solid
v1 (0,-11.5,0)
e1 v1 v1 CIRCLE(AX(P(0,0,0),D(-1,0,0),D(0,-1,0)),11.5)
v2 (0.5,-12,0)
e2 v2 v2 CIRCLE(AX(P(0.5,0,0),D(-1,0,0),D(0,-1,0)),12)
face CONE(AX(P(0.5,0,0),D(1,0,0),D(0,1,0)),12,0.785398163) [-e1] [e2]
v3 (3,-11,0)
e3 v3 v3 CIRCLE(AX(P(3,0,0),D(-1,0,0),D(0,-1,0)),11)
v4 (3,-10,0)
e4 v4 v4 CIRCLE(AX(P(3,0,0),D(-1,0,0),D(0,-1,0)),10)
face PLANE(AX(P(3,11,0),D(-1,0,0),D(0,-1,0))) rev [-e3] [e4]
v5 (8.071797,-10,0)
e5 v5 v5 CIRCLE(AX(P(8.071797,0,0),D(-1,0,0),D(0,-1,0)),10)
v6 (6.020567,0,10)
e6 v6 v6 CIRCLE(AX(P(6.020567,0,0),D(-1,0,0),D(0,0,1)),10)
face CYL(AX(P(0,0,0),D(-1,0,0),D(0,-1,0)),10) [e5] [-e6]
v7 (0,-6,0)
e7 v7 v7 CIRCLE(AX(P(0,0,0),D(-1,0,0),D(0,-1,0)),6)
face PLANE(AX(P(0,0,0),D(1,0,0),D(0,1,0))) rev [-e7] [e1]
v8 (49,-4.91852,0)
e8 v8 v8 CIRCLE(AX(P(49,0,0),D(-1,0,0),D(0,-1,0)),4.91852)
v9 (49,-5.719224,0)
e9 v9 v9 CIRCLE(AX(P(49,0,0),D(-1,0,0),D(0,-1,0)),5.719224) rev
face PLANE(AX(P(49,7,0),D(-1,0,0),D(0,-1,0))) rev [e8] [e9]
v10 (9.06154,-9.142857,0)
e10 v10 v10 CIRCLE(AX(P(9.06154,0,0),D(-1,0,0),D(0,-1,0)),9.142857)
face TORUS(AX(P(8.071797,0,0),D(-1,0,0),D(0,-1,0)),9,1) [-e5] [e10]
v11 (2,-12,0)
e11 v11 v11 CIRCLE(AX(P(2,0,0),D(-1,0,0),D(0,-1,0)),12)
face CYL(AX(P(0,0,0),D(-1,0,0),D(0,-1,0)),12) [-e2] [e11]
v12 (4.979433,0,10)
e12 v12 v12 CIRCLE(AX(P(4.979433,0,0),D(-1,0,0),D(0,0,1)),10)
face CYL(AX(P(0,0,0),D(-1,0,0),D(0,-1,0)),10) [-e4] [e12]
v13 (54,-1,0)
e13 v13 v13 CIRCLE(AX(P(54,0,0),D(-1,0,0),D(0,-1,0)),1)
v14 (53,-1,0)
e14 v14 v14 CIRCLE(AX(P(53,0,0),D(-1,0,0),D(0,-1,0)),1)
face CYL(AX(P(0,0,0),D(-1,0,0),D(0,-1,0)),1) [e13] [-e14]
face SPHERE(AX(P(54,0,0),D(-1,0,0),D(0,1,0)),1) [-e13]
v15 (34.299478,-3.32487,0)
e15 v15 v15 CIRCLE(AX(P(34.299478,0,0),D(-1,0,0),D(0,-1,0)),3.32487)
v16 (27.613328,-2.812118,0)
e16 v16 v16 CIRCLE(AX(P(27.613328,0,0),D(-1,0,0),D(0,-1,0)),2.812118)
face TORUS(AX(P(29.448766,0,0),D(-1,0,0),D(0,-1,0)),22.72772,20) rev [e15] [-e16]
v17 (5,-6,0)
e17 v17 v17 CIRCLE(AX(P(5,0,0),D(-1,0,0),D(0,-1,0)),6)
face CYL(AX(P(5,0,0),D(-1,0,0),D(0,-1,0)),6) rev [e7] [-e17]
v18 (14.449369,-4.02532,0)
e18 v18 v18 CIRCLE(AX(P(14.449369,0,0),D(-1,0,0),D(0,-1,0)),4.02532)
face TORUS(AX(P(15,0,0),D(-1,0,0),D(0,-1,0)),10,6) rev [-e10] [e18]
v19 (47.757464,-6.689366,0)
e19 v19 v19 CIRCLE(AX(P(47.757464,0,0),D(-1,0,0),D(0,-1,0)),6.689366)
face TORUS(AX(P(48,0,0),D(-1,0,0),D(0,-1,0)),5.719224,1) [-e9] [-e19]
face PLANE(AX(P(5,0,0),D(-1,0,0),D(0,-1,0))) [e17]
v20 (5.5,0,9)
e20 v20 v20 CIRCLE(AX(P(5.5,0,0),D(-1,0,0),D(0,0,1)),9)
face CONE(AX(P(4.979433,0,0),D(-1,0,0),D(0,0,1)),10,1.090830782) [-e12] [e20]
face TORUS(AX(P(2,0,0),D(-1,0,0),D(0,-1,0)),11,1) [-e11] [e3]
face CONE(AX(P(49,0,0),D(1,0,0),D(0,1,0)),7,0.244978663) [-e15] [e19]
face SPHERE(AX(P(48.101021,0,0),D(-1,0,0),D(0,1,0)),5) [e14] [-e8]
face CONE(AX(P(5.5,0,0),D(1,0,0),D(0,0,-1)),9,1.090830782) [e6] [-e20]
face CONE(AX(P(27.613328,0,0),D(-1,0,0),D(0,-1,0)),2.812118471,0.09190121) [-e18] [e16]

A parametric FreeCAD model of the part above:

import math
import FreeCAD as App
import Part
import Sketcher
from FreeCAD import Vector
Q = App.Units.Quantity


def edges_at(feature, points):
    """Names of the edges that pass closest to the given points."""
    edges = feature.Shape.Edges
    near = lambda p: min(range(len(edges)), key=lambda i: edges[i].distToShape(Part.Vertex(*p))[0])
    return sorted({f"Edge{near(p) + 1}" for p in points})

doc = App.newDocument("Part")
body = doc.addObject("PartDesign::Body", "Body")

# Sketch on XY plane
sketch1 = body.newObject("Sketcher::SketchObject", "Sketch")
sketch1.AttachmentSupport = (doc.getObject("XY_Plane"), [""])
sketch1.MapMode = "FlatFace"
sketch1.addGeometry([
    Part.LineSegment(Vector(0, 11.5, 0), Vector(0, 0, 0)),  # 0
    Part.LineSegment(Vector(0, 0, 0), Vector(55, 0, 0)),  # 1
    Part.ArcOfCircle(Part.Circle(Vector(54, 0, 0), Vector(0, 0, 1), 1), math.radians(0), math.radians(90)),  # 2
    Part.LineSegment(Vector(54, 1, 0), Vector(53, 1, 0)),  # 3
    Part.ArcOfCircle(Part.Circle(Vector(48.101021, 0, 0), Vector(0, 0, 1), 5), math.radians(11.536959), math.radians(79.642128)),  # 4
    Part.LineSegment(Vector(49, 4.91852, 0), Vector(49, 7, 0)),  # 5
    Part.LineSegment(Vector(49, 7, 0), Vector(34.299478, 3.32487, 0)),  # 6
    Part.ArcOfCircle(Part.Circle(Vector(29.448766, 22.72772, 0), Vector(0, 0, 1), 20), math.radians(-95.265551), math.radians(-75.963757)),  # 7
    Part.LineSegment(Vector(27.613328, 2.812118, 0), Vector(14.449369, 4.02532, 0)),  # 8
    Part.ArcOfCircle(Part.Circle(Vector(15, 10, 0), Vector(0, 0, 1), 6), math.radians(-171.786789), math.radians(-95.265551)),  # 9
    Part.ArcOfCircle(Part.Circle(Vector(8.071797, 9, 0), Vector(0, 0, 1), 1), math.radians(8.213211), math.radians(90)),  # 10
    Part.LineSegment(Vector(8.071797, 10, 0), Vector(3, 10, 0)),  # 11
    Part.LineSegment(Vector(3, 10, 0), Vector(3, 11, 0)),  # 12
    Part.ArcOfCircle(Part.Circle(Vector(2, 11, 0), Vector(0, 0, 1), 1), math.radians(0), math.radians(90)),  # 13
    Part.LineSegment(Vector(2, 12, 0), Vector(0.5, 12, 0)),  # 14
    Part.LineSegment(Vector(0.5, 12, 0), Vector(0, 11.5, 0)),  # 15
], False)
sketch1.addConstraint([
    Sketcher.Constraint("Coincident", 0, 2, 1, 1),
    Sketcher.Constraint("Coincident", 1, 2, 2, 1),
    Sketcher.Constraint("Tangent", 2, 2, 3, 1),
    Sketcher.Constraint("Coincident", 3, 2, 4, 1),
    Sketcher.Constraint("Coincident", 4, 2, 5, 1),
    Sketcher.Constraint("Coincident", 5, 2, 6, 1),
    Sketcher.Constraint("Tangent", 6, 2, 7, 2),
    Sketcher.Constraint("Tangent", 7, 1, 8, 1),
    Sketcher.Constraint("Tangent", 8, 2, 9, 2),
    Sketcher.Constraint("Tangent", 9, 1, 10, 1),
    Sketcher.Constraint("Tangent", 10, 2, 11, 1),
    Sketcher.Constraint("Coincident", 11, 2, 12, 1),
    Sketcher.Constraint("Tangent", 12, 2, 13, 1),
    Sketcher.Constraint("Tangent", 13, 2, 14, 1),
    Sketcher.Constraint("Coincident", 14, 2, 15, 1),
    Sketcher.Constraint("Coincident", 15, 2, 0, 1),
    Sketcher.Constraint("Vertical", 0),
    Sketcher.Constraint("Horizontal", 1),
    Sketcher.Constraint("Horizontal", 3),
    Sketcher.Constraint("Vertical", 5),
    Sketcher.Constraint("Horizontal", 11),
    Sketcher.Constraint("Vertical", 12),
    Sketcher.Constraint("Horizontal", 14),
    Sketcher.Constraint("Coincident", 0, 2, -1, 1),
    Sketcher.Constraint("Equal", 2, 10),
    Sketcher.Constraint("Equal", 10, 13),
    Sketcher.Constraint("PointOnObject", 2, 3, -1),
    Sketcher.Constraint("PointOnObject", 4, 3, -1),
    Sketcher.Constraint("Horizontal", 9, 3, 10, 2),
    Sketcher.Constraint("Equal", 3, 12),
    Sketcher.Constraint("Radius", 2, 1.0),
    Sketcher.Constraint("Radius", 4, 5.0),
    Sketcher.Constraint("Radius", 7, 20.0),
    Sketcher.Constraint("Radius", 9, 6.0),
    Sketcher.Constraint("DistanceX", 1, 1, 1, 2, 55.0),
    Sketcher.Constraint("DistanceX", 3, 2, 3, 1, 1.0),
    Sketcher.Constraint("Angle", 15, Q("-135 deg")),
    Sketcher.Constraint("DistanceX", 14, 2, 14, 1, 1.5),
    Sketcher.Constraint("DistanceY", 0, 2, 0, 1, 11.5),
    Sketcher.Constraint("DistanceX", -1, 1, 9, 3, 15.0),
    Sketcher.Constraint("DistanceY", -1, 1, 9, 3, 10.0),
    Sketcher.Constraint("DistanceX", -1, 1, 4, 2, 49.0),
    Sketcher.Constraint("DistanceY", -1, 1, 5, 2, 7.0),
    Sketcher.Constraint("DistanceY", 7, 1, 7, 3, 19.915601),
    Sketcher.Constraint("DistanceY", 7, 1, 8, 2, 1.213201),
])
revolution = body.newObject("PartDesign::Revolution", "Revolution")
revolution.Profile = sketch1
revolution.ReferenceAxis = (sketch1, ["H_Axis"])
revolution.Angle = 360

# Sketch on XY plane
sketch2 = body.newObject("Sketcher::SketchObject", "Sketch001")
sketch2.AttachmentSupport = (doc.getObject("XY_Plane"), [""])
sketch2.MapMode = "FlatFace"
sketch2.addGeometry([
    Part.LineSegment(Vector(4.979433, 10, 0), Vector(5.5, 9, 0)),
    Part.LineSegment(Vector(5.5, 9, 0), Vector(6.020567, 10, 0)),
    Part.LineSegment(Vector(6.020567, 10, 0), Vector(4.979433, 10, 0)),
], False)
sketch2.addConstraint([
    Sketcher.Constraint("Coincident", 0, 2, 1, 1),
    Sketcher.Constraint("Coincident", 1, 2, 2, 1),
    Sketcher.Constraint("Coincident", 2, 2, 0, 1),
    Sketcher.Constraint("Horizontal", 2),
    Sketcher.Constraint("Equal", 0, 1),
    Sketcher.Constraint("DistanceY", -1, 1, 0, 2, 9.0),
    Sketcher.Constraint("DistanceY", -1, 1, 1, 2, 10.0),
    Sketcher.Constraint("Angle", 0, Q("-62.5 deg")),
    Sketcher.Constraint("DistanceX", -1, 1, 0, 2, 5.5),
])
groove = body.newObject("PartDesign::Groove", "Groove")
groove.Profile = sketch2
groove.ReferenceAxis = (sketch2, ["H_Axis"])
groove.Angle = 360

# Sketch on YZ plane
sketch3 = body.newObject("Sketcher::SketchObject", "Sketch002")
sketch3.AttachmentSupport = (doc.getObject("YZ_Plane"), [""])
sketch3.MapMode = "FlatFace"
sketch3.addGeometry(Part.Circle(Vector(0, 0, 0), Vector(0, 0, 1), 6), False)
sketch3.addConstraint([
    Sketcher.Constraint("Coincident", 0, 3, -1, 1),
    Sketcher.Constraint("Diameter", 0, 12.0),
])
pocket1 = body.newObject("PartDesign::Pocket", "Pocket")
pocket1.Profile = sketch3
pocket1.Length = 5
pocket1.Reversed = True
doc.recompute()

fillet = body.newObject("PartDesign::Fillet", "Fillet")
fillet.Base = (pocket1, edges_at(pocket1, [(49, 7, 0)]))
fillet.Radius = 1

doc.recompute()
